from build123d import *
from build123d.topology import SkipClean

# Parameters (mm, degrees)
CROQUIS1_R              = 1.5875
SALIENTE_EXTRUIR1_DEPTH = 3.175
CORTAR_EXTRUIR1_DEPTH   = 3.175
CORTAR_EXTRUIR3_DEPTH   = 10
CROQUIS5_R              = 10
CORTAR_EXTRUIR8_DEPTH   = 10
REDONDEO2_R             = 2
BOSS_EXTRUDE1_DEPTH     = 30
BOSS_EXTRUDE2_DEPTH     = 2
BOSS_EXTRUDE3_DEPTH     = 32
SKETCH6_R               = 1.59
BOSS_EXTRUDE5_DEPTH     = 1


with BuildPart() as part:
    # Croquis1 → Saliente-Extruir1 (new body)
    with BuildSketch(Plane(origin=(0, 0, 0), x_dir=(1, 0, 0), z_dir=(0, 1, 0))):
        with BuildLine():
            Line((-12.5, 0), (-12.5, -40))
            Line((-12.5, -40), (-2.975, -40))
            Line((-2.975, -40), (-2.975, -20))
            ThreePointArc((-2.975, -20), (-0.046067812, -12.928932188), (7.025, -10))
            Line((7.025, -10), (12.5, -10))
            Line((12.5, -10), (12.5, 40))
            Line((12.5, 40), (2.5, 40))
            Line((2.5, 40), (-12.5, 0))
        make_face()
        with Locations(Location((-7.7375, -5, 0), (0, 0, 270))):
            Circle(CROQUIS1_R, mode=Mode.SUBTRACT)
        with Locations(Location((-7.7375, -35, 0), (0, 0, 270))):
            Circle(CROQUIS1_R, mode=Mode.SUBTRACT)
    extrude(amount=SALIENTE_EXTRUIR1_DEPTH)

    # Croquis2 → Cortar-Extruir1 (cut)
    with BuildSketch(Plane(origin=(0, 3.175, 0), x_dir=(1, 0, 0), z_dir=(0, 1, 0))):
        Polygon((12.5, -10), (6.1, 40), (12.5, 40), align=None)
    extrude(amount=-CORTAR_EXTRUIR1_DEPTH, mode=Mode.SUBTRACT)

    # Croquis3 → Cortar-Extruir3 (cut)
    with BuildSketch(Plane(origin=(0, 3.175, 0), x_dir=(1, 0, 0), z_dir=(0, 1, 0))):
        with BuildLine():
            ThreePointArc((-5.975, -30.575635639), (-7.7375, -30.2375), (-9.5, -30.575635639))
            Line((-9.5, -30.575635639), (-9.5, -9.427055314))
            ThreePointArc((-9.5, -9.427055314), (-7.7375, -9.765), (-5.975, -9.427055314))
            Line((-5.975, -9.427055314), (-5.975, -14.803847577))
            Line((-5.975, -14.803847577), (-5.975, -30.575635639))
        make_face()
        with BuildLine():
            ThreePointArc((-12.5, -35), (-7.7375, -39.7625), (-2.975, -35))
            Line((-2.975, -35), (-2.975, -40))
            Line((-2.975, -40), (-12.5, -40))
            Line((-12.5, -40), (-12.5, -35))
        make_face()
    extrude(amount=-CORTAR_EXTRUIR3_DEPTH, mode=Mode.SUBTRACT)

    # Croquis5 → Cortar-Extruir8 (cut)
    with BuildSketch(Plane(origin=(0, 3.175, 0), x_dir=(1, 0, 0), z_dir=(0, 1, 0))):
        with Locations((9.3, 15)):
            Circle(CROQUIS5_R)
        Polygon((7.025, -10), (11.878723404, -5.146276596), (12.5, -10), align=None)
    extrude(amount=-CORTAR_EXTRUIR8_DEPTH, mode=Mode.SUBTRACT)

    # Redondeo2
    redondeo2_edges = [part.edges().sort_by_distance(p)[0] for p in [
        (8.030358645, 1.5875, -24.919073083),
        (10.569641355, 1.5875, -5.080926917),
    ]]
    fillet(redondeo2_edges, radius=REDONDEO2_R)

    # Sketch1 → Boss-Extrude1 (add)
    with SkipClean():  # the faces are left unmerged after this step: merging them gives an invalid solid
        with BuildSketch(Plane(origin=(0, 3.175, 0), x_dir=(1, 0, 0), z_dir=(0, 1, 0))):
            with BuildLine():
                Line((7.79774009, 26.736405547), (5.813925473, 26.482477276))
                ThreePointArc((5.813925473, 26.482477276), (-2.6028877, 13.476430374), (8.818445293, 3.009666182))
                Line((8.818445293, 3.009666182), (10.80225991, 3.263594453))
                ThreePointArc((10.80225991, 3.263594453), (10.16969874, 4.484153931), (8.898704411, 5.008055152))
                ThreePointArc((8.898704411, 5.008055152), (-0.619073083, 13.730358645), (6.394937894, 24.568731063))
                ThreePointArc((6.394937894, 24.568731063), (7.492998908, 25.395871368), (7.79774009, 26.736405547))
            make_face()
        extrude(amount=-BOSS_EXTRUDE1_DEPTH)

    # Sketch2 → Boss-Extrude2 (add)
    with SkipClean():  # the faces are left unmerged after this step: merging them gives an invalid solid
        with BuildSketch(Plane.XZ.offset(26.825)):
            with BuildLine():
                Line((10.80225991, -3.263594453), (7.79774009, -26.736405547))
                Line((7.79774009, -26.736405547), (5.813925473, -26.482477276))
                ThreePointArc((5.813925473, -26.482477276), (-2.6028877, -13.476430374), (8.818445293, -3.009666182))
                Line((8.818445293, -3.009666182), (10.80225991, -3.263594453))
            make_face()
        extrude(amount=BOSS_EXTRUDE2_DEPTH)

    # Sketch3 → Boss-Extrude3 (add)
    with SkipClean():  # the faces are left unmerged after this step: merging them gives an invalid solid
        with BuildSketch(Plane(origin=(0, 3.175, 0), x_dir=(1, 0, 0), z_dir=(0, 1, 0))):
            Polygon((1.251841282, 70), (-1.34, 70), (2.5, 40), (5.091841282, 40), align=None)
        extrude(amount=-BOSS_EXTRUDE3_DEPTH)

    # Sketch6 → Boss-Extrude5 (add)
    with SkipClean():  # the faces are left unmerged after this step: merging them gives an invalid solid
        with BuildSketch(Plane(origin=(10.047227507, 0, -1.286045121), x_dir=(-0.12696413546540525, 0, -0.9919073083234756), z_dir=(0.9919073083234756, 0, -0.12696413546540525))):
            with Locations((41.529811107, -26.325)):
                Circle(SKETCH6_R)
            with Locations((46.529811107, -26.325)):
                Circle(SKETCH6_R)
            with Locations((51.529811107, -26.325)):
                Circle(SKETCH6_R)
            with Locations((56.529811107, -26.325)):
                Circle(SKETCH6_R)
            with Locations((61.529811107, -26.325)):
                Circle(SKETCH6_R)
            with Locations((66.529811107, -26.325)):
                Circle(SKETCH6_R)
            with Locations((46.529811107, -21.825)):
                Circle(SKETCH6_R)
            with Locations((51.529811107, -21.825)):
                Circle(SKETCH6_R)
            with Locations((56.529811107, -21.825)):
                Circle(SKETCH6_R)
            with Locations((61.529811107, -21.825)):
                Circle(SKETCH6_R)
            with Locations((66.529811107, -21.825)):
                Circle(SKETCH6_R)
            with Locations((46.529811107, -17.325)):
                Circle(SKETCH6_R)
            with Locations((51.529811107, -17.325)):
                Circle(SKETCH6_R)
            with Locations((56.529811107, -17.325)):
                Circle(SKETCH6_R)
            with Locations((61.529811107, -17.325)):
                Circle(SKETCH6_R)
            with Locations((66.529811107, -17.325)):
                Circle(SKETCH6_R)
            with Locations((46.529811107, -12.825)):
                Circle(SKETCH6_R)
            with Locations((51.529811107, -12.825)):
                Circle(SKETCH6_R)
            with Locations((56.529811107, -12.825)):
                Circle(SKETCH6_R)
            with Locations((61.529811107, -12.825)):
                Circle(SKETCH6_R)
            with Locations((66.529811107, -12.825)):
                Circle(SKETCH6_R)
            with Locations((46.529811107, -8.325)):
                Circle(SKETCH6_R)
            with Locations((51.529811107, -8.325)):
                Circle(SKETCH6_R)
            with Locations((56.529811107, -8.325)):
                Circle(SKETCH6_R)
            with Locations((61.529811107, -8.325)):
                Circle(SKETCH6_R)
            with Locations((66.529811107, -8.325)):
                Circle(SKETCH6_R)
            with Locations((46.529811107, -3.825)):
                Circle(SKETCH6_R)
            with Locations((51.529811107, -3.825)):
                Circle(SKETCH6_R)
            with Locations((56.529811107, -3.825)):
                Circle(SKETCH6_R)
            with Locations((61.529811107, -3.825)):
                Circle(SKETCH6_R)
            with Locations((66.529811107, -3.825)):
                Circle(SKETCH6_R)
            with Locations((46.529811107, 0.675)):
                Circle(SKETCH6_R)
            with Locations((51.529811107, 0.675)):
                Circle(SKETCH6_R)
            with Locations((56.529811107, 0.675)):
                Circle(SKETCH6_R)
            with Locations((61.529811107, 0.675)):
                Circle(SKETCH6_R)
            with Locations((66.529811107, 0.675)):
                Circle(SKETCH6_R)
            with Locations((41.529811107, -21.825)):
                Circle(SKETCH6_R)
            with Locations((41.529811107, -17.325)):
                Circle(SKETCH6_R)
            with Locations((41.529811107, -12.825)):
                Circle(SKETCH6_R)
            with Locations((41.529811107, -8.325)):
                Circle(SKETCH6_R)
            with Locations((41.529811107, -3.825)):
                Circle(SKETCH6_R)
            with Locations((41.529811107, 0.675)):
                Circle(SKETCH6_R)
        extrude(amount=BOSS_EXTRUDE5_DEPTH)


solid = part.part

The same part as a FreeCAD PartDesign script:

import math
import FreeCAD as App
import Part
import Sketcher

V = App.Vector
Q = App.Units.Quantity


def edges_at(feature, points):
    """Names of the edges that pass closest to the given points."""
    edges = feature.Shape.Edges
    near = lambda p: min(range(len(edges)), key=lambda i: edges[i].distToShape(Part.Vertex(*p))[0])
    return sorted({f"Edge{near(p) + 1}" for p in points})

doc = App.newDocument("Part")
body = doc.addObject("PartDesign::Body", "Body")

# Sketch on XZ plane
sketch1 = body.newObject("Sketcher::SketchObject", "Sketch")
sketch1.AttachmentSupport = (doc.getObject("XZ_Plane"), [""])
sketch1.MapMode = "FlatFace"
sketch1.addGeometry(Part.LineSegment(V(-12.5, 0, 0), V(-12.5, 40, 0)), False)
sketch1.addGeometry(Part.LineSegment(V(-12.5, 40, 0), V(-3, 40, 0)), False)
sketch1.addGeometry(Part.LineSegment(V(-3, 40, 0), V(-3, 20, 0)), False)
sketch1.addGeometry(Part.ArcOfCircle(Part.Circle(V(7, 20, 0), V(0, 0, 1), 10), math.radians(180), math.radians(270)), False)
sketch1.addGeometry(Part.LineSegment(V(7, 10, 0), V(12.5, 10, 0)), False)
sketch1.addGeometry(Part.LineSegment(V(12.5, 10, 0), V(12.5, -40, 0)), False)
sketch1.addGeometry(Part.LineSegment(V(12.5, -40, 0), V(2.5, -40, 0)), False)
sketch1.addGeometry(Part.LineSegment(V(2.5, -40, 0), V(-12.5, 0, 0)), False)
sketch1.addGeometry(Part.Circle(V(-7.7, 35, 0), V(0, 0, 1), 1.6), False)
sketch1.addGeometry(Part.Circle(V(-7.7, 5, 0), V(0, 0, 1), 1.6), False)
sketch1.addConstraint(Sketcher.Constraint("Coincident", 0, 2, 1, 1))
sketch1.addConstraint(Sketcher.Constraint("Coincident", 1, 2, 2, 1))
sketch1.addConstraint(Sketcher.Constraint("Tangent", 2, 2, 3, 1))
sketch1.addConstraint(Sketcher.Constraint("Tangent", 3, 2, 4, 1))
sketch1.addConstraint(Sketcher.Constraint("Coincident", 4, 2, 5, 1))
sketch1.addConstraint(Sketcher.Constraint("Coincident", 5, 2, 6, 1))
sketch1.addConstraint(Sketcher.Constraint("Coincident", 6, 2, 7, 1))
sketch1.addConstraint(Sketcher.Constraint("Coincident", 7, 2, 0, 1))
sketch1.addConstraint(Sketcher.Constraint("Vertical", 0))
sketch1.addConstraint(Sketcher.Constraint("Horizontal", 1))
sketch1.addConstraint(Sketcher.Constraint("Vertical", 2))
sketch1.addConstraint(Sketcher.Constraint("Horizontal", 4))
sketch1.addConstraint(Sketcher.Constraint("Vertical", 5))
sketch1.addConstraint(Sketcher.Constraint("Horizontal", 6))
sketch1.addConstraint(Sketcher.Constraint("Equal", 8, 9))
sketch1.addConstraint(Sketcher.Constraint("Symmetric", 0, 2, 5, 2, -1, 1))
sketch1.addConstraint(Sketcher.Constraint("PointOnObject", 7, 2, -1))
sketch1.addConstraint(Sketcher.Constraint("Vertical", 8, 3, 9, 3))
sketch1.addConstraint(Sketcher.Constraint("Radius", 3, 10.0))
sketch1.addConstraint(Sketcher.Constraint("DistanceX", 6, 2, 6, 1, 10.0))
sketch1.addConstraint(Sketcher.Constraint("DistanceY", 0, 1, 0, 2, 40.0))
sketch1.addConstraint(Sketcher.Constraint("DistanceY", 2, 2, 2, 1, 20.0))
sketch1.addConstraint(Sketcher.Constraint("Diameter", 8, 3.175))
sketch1.addConstraint(Sketcher.Constraint("DistanceY", -1, 1, 8, 3, 35.0))
sketch1.addConstraint(Sketcher.Constraint("DistanceY", -1, 1, 9, 3, 5.0))
sketch1.addConstraint(Sketcher.Constraint("DistanceX", 7, 2, 4, 2, 25.0))
sketch1.addConstraint(Sketcher.Constraint("DistanceX", 1, 1, 1, 2, 9.525))
sketch1.addConstraint(Sketcher.Constraint("DistanceX", 8, 3, -1, 1, 7.7375))
pad1 = body.newObject("PartDesign::Pad", "Pad")
pad1.Profile = sketch1
pad1.Length = 3.175
pad1.Reversed = True

# Sketch on XZ plane
sketch2 = body.newObject("Sketcher::SketchObject", "Sketch001")
sketch2.AttachmentSupport = (doc.getObject("XZ_Plane"), [""])
sketch2.MapMode = "FlatFace"
sketch2.AttachmentOffset = App.Placement(V(0, 0, -3.175), App.Rotation())
sketch2.addGeometry(Part.LineSegment(V(6, -40, 0), V(12, 10, 0)), False)
sketch2.addGeometry(Part.LineSegment(V(12, 10, 0), V(12, -40, 0)), False)
sketch2.addGeometry(Part.LineSegment(V(12, -40, 0), V(6, -40, 0)), False)
sketch2.addConstraint(Sketcher.Constraint("Coincident", 0, 2, 1, 1))
sketch2.addConstraint(Sketcher.Constraint("Coincident", 1, 2, 2, 1))
sketch2.addConstraint(Sketcher.Constraint("Coincident", 2, 2, 0, 1))
sketch2.addConstraint(Sketcher.Constraint("Vertical", 1))
sketch2.addConstraint(Sketcher.Constraint("Horizontal", 2))
sketch2.addConstraint(Sketcher.Constraint("DistanceY", 1, 2, 1, 1, 50.0))
sketch2.addConstraint(Sketcher.Constraint("DistanceX", 2, 2, 2, 1, 6.4))
sketch2.addConstraint(Sketcher.Constraint("DistanceY", -1, 1, 0, 2, 10.0))
sketch2.addConstraint(Sketcher.Constraint("DistanceX", -1, 1, 0, 2, 12.5))
pocket1 = body.newObject("PartDesign::Pocket", "Pocket")
pocket1.Profile = sketch2
pocket1.Length = 3.175
pocket1.Reversed = True

# Sketch on XZ plane
sketch3 = body.newObject("Sketcher::SketchObject", "Sketch002")
sketch3.AttachmentSupport = (doc.getObject("XZ_Plane"), [""])
sketch3.MapMode = "FlatFace"
sketch3.AttachmentOffset = App.Placement(V(0, 0, -3.175), App.Rotation())
sketch3.addGeometry(Part.ArcOfCircle(Part.Circle(V(-7.7, 35, 0), V(0, 0, 1), 4.8), math.radians(-112), math.radians(-68)), False)
sketch3.addGeometry(Part.LineSegment(V(-6, 30.6, 0), V(-6, 9.4, 0)), False)
sketch3.addGeometry(Part.ArcOfCircle(Part.Circle(V(-7.7, 5, 0), V(0, 0, 1), 4.8), math.radians(68), math.radians(112)), False)
sketch3.addGeometry(Part.LineSegment(V(-9.5, 9.4, 0), V(-9.5, 30.6, 0)), False)
sketch3.addGeometry(Part.ArcOfCircle(Part.Circle(V(-7.7, 35, 0), V(0, 0, 1), 4.8), math.radians(0), math.radians(180)), False)
sketch3.addGeometry(Part.LineSegment(V(-12.5, 35, 0), V(-12.5, 40, 0)), False)
sketch3.addGeometry(Part.LineSegment(V(-12.5, 40, 0), V(-3, 40, 0)), False)
sketch3.addGeometry(Part.LineSegment(V(-3, 40, 0), V(-3, 35, 0)), False)
sketch3.addConstraint(Sketcher.Constraint("Coincident", 0, 2, 1, 1))
sketch3.addConstraint(Sketcher.Constraint("Coincident", 1, 2, 2, 1))
sketch3.addConstraint(Sketcher.Constraint("Coincident", 2, 2, 3, 1))
sketch3.addConstraint(Sketcher.Constraint("Coincident", 3, 2, 0, 1))
sketch3.addConstraint(Sketcher.Constraint("Tangent", 4, 2, 5, 1))
sketch3.addConstraint(Sketcher.Constraint("Coincident", 5, 2, 6, 1))
sketch3.addConstraint(Sketcher.Constraint("Coincident", 6, 2, 7, 1))
sketch3.addConstraint(Sketcher.Constraint("Tangent", 7, 2, 4, 1))
sketch3.addConstraint(Sketcher.Constraint("Vertical", 1))
sketch3.addConstraint(Sketcher.Constraint("Vertical", 3))
sketch3.addConstraint(Sketcher.Constraint("Vertical", 5))
sketch3.addConstraint(Sketcher.Constraint("Horizontal", 6))
sketch3.addConstraint(Sketcher.Constraint("Vertical", 7))
sketch3.addConstraint(Sketcher.Constraint("Coincident", 4, 3, 0, 3))
sketch3.addConstraint(Sketcher.Constraint("Equal", 0, 4))
sketch3.addConstraint(Sketcher.Constraint("Horizontal", 1, 2, 2, 2))
sketch3.addConstraint(Sketcher.Constraint("Horizontal", 0, 2, 3, 2))
sketch3.addConstraint(Sketcher.Constraint("DistanceY", 5, 1, 5, 2, 5.0))
sketch3.addConstraint(Sketcher.Constraint("DistanceY", -1, 1, 0, 3, 35.0))
sketch3.addConstraint(Sketcher.Constraint("DistanceY", -1, 1, 2, 3, 5.0))
sketch3.addConstraint(Sketcher.Constraint("Radius", 2, 4.765))
sketch3.addConstraint(Sketcher.Constraint("DistanceX", 4, 2, 3, 2, 3.0))
sketch3.addConstraint(Sketcher.Constraint("DistanceX", 2, 2, -1, 1, 9.5))
sketch3.addConstraint(Sketcher.Constraint("Radius", 0, 4.7625))
pocket2 = body.newObject("PartDesign::Pocket", "Pocket001")
pocket2.Profile = sketch3
pocket2.Length = 10
pocket2.Reversed = True

# Sketch on XZ plane
sketch4 = body.newObject("Sketcher::SketchObject", "Sketch003")
sketch4.AttachmentSupport = (doc.getObject("XZ_Plane"), [""])
sketch4.MapMode = "FlatFace"
sketch4.AttachmentOffset = App.Placement(V(0, 0, -3.175), App.Rotation())
sketch4.addGeometry(Part.Circle(V(9.3, -15, 0), V(0, 0, 1), 10), False)
sketch4.addGeometry(Part.LineSegment(V(11.9, 5.1, 0), V(7, 10, 0)), False)
sketch4.addGeometry(Part.LineSegment(V(7, 10, 0), V(12.5, 10, 0)), False)
sketch4.addGeometry(Part.LineSegment(V(12.5, 10, 0), V(11.9, 5.1, 0)), False)
sketch4.addConstraint(Sketcher.Constraint("Coincident", 1, 2, 2, 1))
sketch4.addConstraint(Sketcher.Constraint("Coincident", 2, 2, 3, 1))
sketch4.addConstraint(Sketcher.Constraint("Coincident", 3, 2, 1, 1))
sketch4.addConstraint(Sketcher.Constraint("Horizontal", 2))
sketch4.addConstraint(Sketcher.Constraint("Diameter", 0, 20.0))
sketch4.addConstraint(Sketcher.Constraint("Angle", 1, Q("135 deg")))
sketch4.addConstraint(Sketcher.Constraint("DistanceY", 0, 3, -1, 1, 15.0))
sketch4.addConstraint(Sketcher.Constraint("DistanceY", -1, 1, 1, 2, 10.0))
sketch4.addConstraint(Sketcher.Constraint("DistanceX", -1, 1, 0, 3, 9.3))
sketch4.addConstraint(Sketcher.Constraint("DistanceX", -1, 1, 2, 2, 12.5))
sketch4.addConstraint(Sketcher.Constraint("DistanceX", 2, 1, 2, 2, 5.475))
sketch4.addConstraint(Sketcher.Constraint("Distance", 1, 6.864201))
pocket3 = body.newObject("PartDesign::Pocket", "Pocket002")
pocket3.Profile = sketch4
pocket3.Length = 10
pocket3.Reversed = True
doc.recompute()

fillet = body.newObject("PartDesign::Fillet", "Fillet")
fillet.Base = (pocket3, edges_at(pocket3, [(8.03, 1.587, -24.919), (10.57, 1.587, -5.081)]))
fillet.Radius = 2

# Sketch on XZ plane
sketch5 = body.newObject("Sketcher::SketchObject", "Sketch004")
sketch5.AttachmentSupport = (doc.getObject("XZ_Plane"), [""])
sketch5.MapMode = "FlatFace"
sketch5.AttachmentOffset = App.Placement(V(0, 0, -3.175), App.Rotation())
sketch5.addGeometry(Part.LineSegment(V(7.8, -26.7, 0), V(5.8, -26.5, 0)), False)
sketch5.addGeometry(Part.ArcOfCircle(Part.Circle(V(9.3, -15, 0), V(0, 0, 1), 12), math.radians(92), math.radians(253)), False)
sketch5.addGeometry(Part.LineSegment(V(8.8, -3, 0), V(10.8, -3.3, 0)), False)
sketch5.addGeometry(Part.ArcOfCircle(Part.Circle(V(8.8, -3, 0), V(0, 0, 1), 2), math.radians(-88), math.radians(-7)), False)
sketch5.addGeometry(Part.ArcOfCircle(Part.Circle(V(9.3, -15, 0), V(0, 0, 1), 10), math.radians(92), math.radians(253)), False)
sketch5.addGeometry(Part.ArcOfCircle(Part.Circle(V(5.8, -26.5, 0), V(0, 0, 1), 2), math.radians(-7), math.radians(73)), False)
sketch5.addConstraint(Sketcher.Constraint("Coincident", 0, 2, 1, 2))
sketch5.addConstraint(Sketcher.Constraint("Coincident", 1, 1, 2, 1))
sketch5.addConstraint(Sketcher.Constraint("Coincident", 2, 2, 3, 2))
sketch5.addConstraint(Sketcher.Constraint("Tangent", 3, 1, 4, 1))
sketch5.addConstraint(Sketcher.Constraint("Tangent", 4, 2, 5, 2))
sketch5.addConstraint(Sketcher.Constraint("Coincident", 5, 1, 0, 1))
sketch5.addConstraint(Sketcher.Constraint("Coincident", 4, 3, 1, 3))
sketch5.addConstraint(Sketcher.Constraint("Coincident", 0, 2, 5, 3))
sketch5.addConstraint(Sketcher.Constraint("Coincident", 1, 1, 3, 3))
sketch5.addConstraint(Sketcher.Constraint("Parallel", 0, 2))
sketch5.addConstraint(Sketcher.Constraint("Radius", 1, 12.0))
sketch5.addConstraint(Sketcher.Constraint("Radius", 3, 2.0))
sketch5.addConstraint(Sketcher.Constraint("DistanceY", 1, 3, -1, 1, 15.0))
sketch5.addConstraint(Sketcher.Constraint("DistanceX", -1, 1, 1, 3, 9.3))
sketch5.addConstraint(Sketcher.Constraint("DistanceX", -1, 1, 2, 2, 10.80226))
sketch5.addConstraint(Sketcher.Constraint("DistanceY", 4, 2, -1, 1, 24.568731))
sketch5.addConstraint(Sketcher.Constraint("DistanceX", -1, 1, 5, 1, 7.79774))
pad2 = body.newObject("PartDesign::Pad", "Pad001")
pad2.Profile = sketch5
pad2.Length = 30

# Sketch on XZ plane
sketch6 = body.newObject("Sketcher::SketchObject", "Sketch005")
sketch6.AttachmentSupport = (doc.getObject("XZ_Plane"), [""])
sketch6.MapMode = "FlatFace"
sketch6.AttachmentOffset = App.Placement(V(0, 0, 26.825), App.Rotation())
sketch6.addGeometry(Part.LineSegment(V(7.8, -26.7, 0), V(10.8, -3.3, 0)), False)
sketch6.addGeometry(Part.LineSegment(V(10.8, -3.3, 0), V(8.8, -3, 0)), False)
sketch6.addGeometry(Part.ArcOfCircle(Part.Circle(V(9.3, -15, 0), V(0, 0, 1), 12), math.radians(92), math.radians(253)), False)
sketch6.addGeometry(Part.LineSegment(V(5.8, -26.5, 0), V(7.8, -26.7, 0)), False)
sketch6.addConstraint(Sketcher.Constraint("Coincident", 0, 2, 1, 1))
sketch6.addConstraint(Sketcher.Constraint("Coincident", 1, 2, 2, 1))
sketch6.addConstraint(Sketcher.Constraint("Coincident", 2, 2, 3, 1))
sketch6.addConstraint(Sketcher.Constraint("Coincident", 3, 2, 0, 1))
sketch6.addConstraint(Sketcher.Constraint("Perpendicular", 0, 1))
sketch6.addConstraint(Sketcher.Constraint("Parallel", 1, 3))
sketch6.addConstraint(Sketcher.Constraint("Equal", 1, 3))
sketch6.addConstraint(Sketcher.Constraint("Radius", 2, 12.0))
sketch6.addConstraint(Sketcher.Constraint("Distance", 1, 2.0))
sketch6.addConstraint(Sketcher.Constraint("DistanceY", 2, 3, -1, 1, 15.0))
sketch6.addConstraint(Sketcher.Constraint("DistanceX", -1, 1, 2, 3, 9.3))
sketch6.addConstraint(Sketcher.Constraint("Distance", 0, 23.664319))
sketch6.addConstraint(Sketcher.Constraint("DistanceX", -1, 1, 0, 2, 10.80226))
pad3 = body.newObject("PartDesign::Pad", "Pad002")
pad3.Profile = sketch6
pad3.Length = 2

# Sketch on XZ plane
sketch7 = body.newObject("Sketcher::SketchObject", "Sketch006")
sketch7.AttachmentSupport = (doc.getObject("XZ_Plane"), [""])
sketch7.MapMode = "FlatFace"
sketch7.AttachmentOffset = App.Placement(V(0, 0, -3.175), App.Rotation())
sketch7.addGeometry(Part.LineSegment(V(1.3, -70, 0), V(-1.3, -70, 0)), False)
sketch7.addGeometry(Part.LineSegment(V(-1.3, -70, 0), V(2.5, -40, 0)), False)
sketch7.addGeometry(Part.LineSegment(V(2.5, -40, 0), V(5.1, -40, 0)), False)
sketch7.addGeometry(Part.LineSegment(V(5.1, -40, 0), V(1.3, -70, 0)), False)
sketch7.addConstraint(Sketcher.Constraint("Coincident", 0, 2, 1, 1))
sketch7.addConstraint(Sketcher.Constraint("Coincident", 1, 2, 2, 1))
sketch7.addConstraint(Sketcher.Constraint("Coincident", 2, 2, 3, 1))
sketch7.addConstraint(Sketcher.Constraint("Coincident", 3, 2, 0, 1))
sketch7.addConstraint(Sketcher.Constraint("Horizontal", 0))
sketch7.addConstraint(Sketcher.Constraint("Horizontal", 2))
sketch7.addConstraint(Sketcher.Constraint("Parallel", 1, 3))
sketch7.addConstraint(Sketcher.Constraint("DistanceY", 0, 2, -1, 1, 70.0))
sketch7.addConstraint(Sketcher.Constraint("DistanceY", 1, 2, -1, 1, 40.0))
sketch7.addConstraint(Sketcher.Constraint("DistanceX", -1, 1, 1, 2, 2.5))
sketch7.addConstraint(Sketcher.Constraint("DistanceX", 0, 2, -1, 1, 1.34))
sketch7.addConstraint(Sketcher.Constraint("DistanceX", 0, 2, 0, 1, 2.591841))
pad4 = body.newObject("PartDesign::Pad", "Pad003")
pad4.Profile = sketch7
pad4.Length = 32

# Sketch on an angled plane
sketch8 = body.newObject("Sketcher::SketchObject", "Sketch007")
sketch8.Placement = App.Placement(V(10.047228, 0, -1.286045), App.Rotation(V(-0.126964135, 0, -0.991907308), V(0, 0.999999999, 0), V(0.991907308, 0, -0.126964135), "ZXY"))
sketch8.addGeometry(Part.Circle(V(41.5, -26.3, 0), V(0, 0, 1), 1.6), False)
sketch8.addGeometry(Part.Circle(V(46.5, -26.3, 0), V(0, 0, 1), 1.6), False)
sketch8.addGeometry(Part.Circle(V(51.5, -26.3, 0), V(0, 0, 1), 1.6), False)
sketch8.addGeometry(Part.Circle(V(56.5, -26.3, 0), V(0, 0, 1), 1.6), False)
sketch8.addGeometry(Part.Circle(V(61.5, -26.3, 0), V(0, 0, 1), 1.6), False)
sketch8.addGeometry(Part.Circle(V(66.5, -26.3, 0), V(0, 0, 1), 1.6), False)
sketch8.addGeometry(Part.Circle(V(46.5, -21.8, 0), V(0, 0, 1), 1.6), False)
sketch8.addGeometry(Part.Circle(V(51.5, -21.8, 0), V(0, 0, 1), 1.6), False)
sketch8.addGeometry(Part.Circle(V(56.5, -21.8, 0), V(0, 0, 1), 1.6), False)
sketch8.addGeometry(Part.Circle(V(61.5, -21.8, 0), V(0, 0, 1), 1.6), False)
sketch8.addGeometry(Part.Circle(V(66.5, -21.8, 0), V(0, 0, 1), 1.6), False)
sketch8.addGeometry(Part.Circle(V(46.5, -17.3, 0), V(0, 0, 1), 1.6), False)
sketch8.addGeometry(Part.Circle(V(51.5, -17.3, 0), V(0, 0, 1), 1.6), False)
sketch8.addGeometry(Part.Circle(V(56.5, -17.3, 0), V(0, 0, 1), 1.6), False)
sketch8.addGeometry(Part.Circle(V(61.5, -17.3, 0), V(0, 0, 1), 1.6), False)
sketch8.addGeometry(Part.Circle(V(66.5, -17.3, 0), V(0, 0, 1), 1.6), False)
sketch8.addGeometry(Part.Circle(V(46.5, -12.8, 0), V(0, 0, 1), 1.6), False)
sketch8.addGeometry(Part.Circle(V(51.5, -12.8, 0), V(0, 0, 1), 1.6), False)
sketch8.addGeometry(Part.Circle(V(56.5, -12.8, 0), V(0, 0, 1), 1.6), False)
sketch8.addGeometry(Part.Circle(V(61.5, -12.8, 0), V(0, 0, 1), 1.6), False)
sketch8.addGeometry(Part.Circle(V(66.5, -12.8, 0), V(0, 0, 1), 1.6), False)
sketch8.addGeometry(Part.Circle(V(46.5, -8.3, 0), V(0, 0, 1), 1.6), False)
sketch8.addGeometry(Part.Circle(V(51.5, -8.3, 0), V(0, 0, 1), 1.6), False)
sketch8.addGeometry(Part.Circle(V(56.5, -8.3, 0), V(0, 0, 1), 1.6), False)
sketch8.addGeometry(Part.Circle(V(61.5, -8.3, 0), V(0, 0, 1), 1.6), False)
sketch8.addGeometry(Part.Circle(V(66.5, -8.3, 0), V(0, 0, 1), 1.6), False)
sketch8.addGeometry(Part.Circle(V(46.5, -3.8, 0), V(0, 0, 1), 1.6), False)
sketch8.addGeometry(Part.Circle(V(51.5, -3.8, 0), V(0, 0, 1), 1.6), False)
sketch8.addGeometry(Part.Circle(V(56.5, -3.8, 0), V(0, 0, 1), 1.6), False)
sketch8.addGeometry(Part.Circle(V(61.5, -3.8, 0), V(0, 0, 1), 1.6), False)
sketch8.addGeometry(Part.Circle(V(66.5, -3.8, 0), V(0, 0, 1), 1.6), False)
sketch8.addGeometry(Part.Circle(V(46.5, 0.7, 0), V(0, 0, 1), 1.6), False)
sketch8.addGeometry(Part.Circle(V(51.5, 0.7, 0), V(0, 0, 1), 1.6), False)
sketch8.addGeometry(Part.Circle(V(56.5, 0.7, 0), V(0, 0, 1), 1.6), False)
sketch8.addGeometry(Part.Circle(V(61.5, 0.7, 0), V(0, 0, 1), 1.6), False)
sketch8.addGeometry(Part.Circle(V(66.5, 0.7, 0), V(0, 0, 1), 1.6), False)
sketch8.addGeometry(Part.Circle(V(41.5, -21.8, 0), V(0, 0, 1), 1.6), False)
sketch8.addGeometry(Part.Circle(V(41.5, -17.3, 0), V(0, 0, 1), 1.6), False)
sketch8.addGeometry(Part.Circle(V(41.5, -12.8, 0), V(0, 0, 1), 1.6), False)
sketch8.addGeometry(Part.Circle(V(41.5, -8.3, 0), V(0, 0, 1), 1.6), False)
sketch8.addGeometry(Part.Circle(V(41.5, -3.8, 0), V(0, 0, 1), 1.6), False)
sketch8.addGeometry(Part.Circle(V(41.5, 0.7, 0), V(0, 0, 1), 1.6), False)
sketch8.addConstraint(Sketcher.Constraint("Equal", 0, 1))
sketch8.addConstraint(Sketcher.Constraint("Equal", 1, 2))
sketch8.addConstraint(Sketcher.Constraint("Equal", 2, 3))
sketch8.addConstraint(Sketcher.Constraint("Equal", 3, 4))
sketch8.addConstraint(Sketcher.Constraint("Equal", 4, 5))
sketch8.addConstraint(Sketcher.Constraint("Equal", 5, 6))
sketch8.addConstraint(Sketcher.Constraint("Equal", 6, 7))
sketch8.addConstraint(Sketcher.Constraint("Equal", 7, 8))
sketch8.addConstraint(Sketcher.Constraint("Equal", 8, 9))
sketch8.addConstraint(Sketcher.Constraint("Equal", 9, 10))
sketch8.addConstraint(Sketcher.Constraint("Equal", 10, 11))
sketch8.addConstraint(Sketcher.Constraint("Equal", 11, 12))
sketch8.addConstraint(Sketcher.Constraint("Equal", 12, 13))
sketch8.addConstraint(Sketcher.Constraint("Equal", 13, 14))
sketch8.addConstraint(Sketcher.Constraint("Equal", 14, 15))
sketch8.addConstraint(Sketcher.Constraint("Equal", 15, 16))
sketch8.addConstraint(Sketcher.Constraint("Equal", 16, 17))
sketch8.addConstraint(Sketcher.Constraint("Equal", 17, 18))
sketch8.addConstraint(Sketcher.Constraint("Equal", 18, 19))
sketch8.addConstraint(Sketcher.Constraint("Equal", 19, 20))
sketch8.addConstraint(Sketcher.Constraint("Equal", 20, 21))
sketch8.addConstraint(Sketcher.Constraint("Equal", 21, 22))
sketch8.addConstraint(Sketcher.Constraint("Equal", 22, 23))
sketch8.addConstraint(Sketcher.Constraint("Equal", 23, 24))
sketch8.addConstraint(Sketcher.Constraint("Equal", 24, 25))
sketch8.addConstraint(Sketcher.Constraint("Equal", 25, 26))
sketch8.addConstraint(Sketcher.Constraint("Equal", 26, 27))
sketch8.addConstraint(Sketcher.Constraint("Equal", 27, 28))
sketch8.addConstraint(Sketcher.Constraint("Equal", 28, 29))
sketch8.addConstraint(Sketcher.Constraint("Equal", 29, 30))
sketch8.addConstraint(Sketcher.Constraint("Equal", 30, 31))
sketch8.addConstraint(Sketcher.Constraint("Equal", 31, 32))
sketch8.addConstraint(Sketcher.Constraint("Equal", 32, 33))
sketch8.addConstraint(Sketcher.Constraint("Equal", 33, 34))
sketch8.addConstraint(Sketcher.Constraint("Equal", 34, 35))
sketch8.addConstraint(Sketcher.Constraint("Equal", 35, 36))
sketch8.addConstraint(Sketcher.Constraint("Equal", 36, 37))
sketch8.addConstraint(Sketcher.Constraint("Equal", 37, 38))
sketch8.addConstraint(Sketcher.Constraint("Equal", 38, 39))
sketch8.addConstraint(Sketcher.Constraint("Equal", 39, 40))
sketch8.addConstraint(Sketcher.Constraint("Equal", 40, 41))
sketch8.addConstraint(Sketcher.Constraint("Horizontal", 0, 3, 1, 3))
sketch8.addConstraint(Sketcher.Constraint("Horizontal", 1, 3, 2, 3))
sketch8.addConstraint(Sketcher.Constraint("Horizontal", 2, 3, 3, 3))
sketch8.addConstraint(Sketcher.Constraint("Horizontal", 3, 3, 4, 3))
sketch8.addConstraint(Sketcher.Constraint("Horizontal", 4, 3, 5, 3))
sketch8.addConstraint(Sketcher.Constraint("Horizontal", 6, 3, 7, 3))
sketch8.addConstraint(Sketcher.Constraint("Horizontal", 7, 3, 8, 3))
sketch8.addConstraint(Sketcher.Constraint("Horizontal", 8, 3, 9, 3))
sketch8.addConstraint(Sketcher.Constraint("Horizontal", 9, 3, 10, 3))
sketch8.addConstraint(Sketcher.Constraint("Horizontal", 11, 3, 12, 3))
sketch8.addConstraint(Sketcher.Constraint("Horizontal", 12, 3, 13, 3))
sketch8.addConstraint(Sketcher.Constraint("Horizontal", 13, 3, 14, 3))
sketch8.addConstraint(Sketcher.Constraint("Horizontal", 14, 3, 15, 3))
sketch8.addConstraint(Sketcher.Constraint("Horizontal", 16, 3, 17, 3))
sketch8.addConstraint(Sketcher.Constraint("Horizontal", 17, 3, 18, 3))
sketch8.addConstraint(Sketcher.Constraint("Horizontal", 18, 3, 19, 3))
sketch8.addConstraint(Sketcher.Constraint("Horizontal", 19, 3, 20, 3))
sketch8.addConstraint(Sketcher.Constraint("Horizontal", 21, 3, 22, 3))
sketch8.addConstraint(Sketcher.Constraint("Horizontal", 22, 3, 23, 3))
sketch8.addConstraint(Sketcher.Constraint("Horizontal", 23, 3, 24, 3))
sketch8.addConstraint(Sketcher.Constraint("Horizontal", 24, 3, 25, 3))
sketch8.addConstraint(Sketcher.Constraint("Horizontal", 26, 3, 27, 3))
sketch8.addConstraint(Sketcher.Constraint("Horizontal", 27, 3, 28, 3))
sketch8.addConstraint(Sketcher.Constraint("Horizontal", 28, 3, 29, 3))
sketch8.addConstraint(Sketcher.Constraint("Horizontal", 29, 3, 30, 3))
sketch8.addConstraint(Sketcher.Constraint("Horizontal", 31, 3, 32, 3))
sketch8.addConstraint(Sketcher.Constraint("Horizontal", 32, 3, 33, 3))
sketch8.addConstraint(Sketcher.Constraint("Horizontal", 33, 3, 34, 3))
sketch8.addConstraint(Sketcher.Constraint("Horizontal", 34, 3, 35, 3))
sketch8.addConstraint(Sketcher.Constraint("Horizontal", 10, 3, 36, 3))
sketch8.addConstraint(Sketcher.Constraint("Horizontal", 15, 3, 37, 3))
sketch8.addConstraint(Sketcher.Constraint("Horizontal", 20, 3, 38, 3))
sketch8.addConstraint(Sketcher.Constraint("Horizontal", 25, 3, 39, 3))
sketch8.addConstraint(Sketcher.Constraint("Horizontal", 30, 3, 40, 3))
sketch8.addConstraint(Sketcher.Constraint("Horizontal", 35, 3, 41, 3))
sketch8.addConstraint(Sketcher.Constraint("Vertical", 1, 3, 6, 3))
sketch8.addConstraint(Sketcher.Constraint("Vertical", 2, 3, 7, 3))
sketch8.addConstraint(Sketcher.Constraint("Vertical", 3, 3, 8, 3))
sketch8.addConstraint(Sketcher.Constraint("Vertical", 4, 3, 9, 3))
sketch8.addConstraint(Sketcher.Constraint("Vertical", 5, 3, 10, 3))
sketch8.addConstraint(Sketcher.Constraint("Vertical", 6, 3, 11, 3))
sketch8.addConstraint(Sketcher.Constraint("Vertical", 7, 3, 12, 3))
sketch8.addConstraint(Sketcher.Constraint("Vertical", 8, 3, 13, 3))
sketch8.addConstraint(Sketcher.Constraint("Vertical", 9, 3, 14, 3))
sketch8.addConstraint(Sketcher.Constraint("Vertical", 10, 3, 15, 3))
sketch8.addConstraint(Sketcher.Constraint("Vertical", 11, 3, 16, 3))
sketch8.addConstraint(Sketcher.Constraint("Vertical", 12, 3, 17, 3))
sketch8.addConstraint(Sketcher.Constraint("Vertical", 13, 3, 18, 3))
sketch8.addConstraint(Sketcher.Constraint("Vertical", 14, 3, 19, 3))
sketch8.addConstraint(Sketcher.Constraint("Vertical", 15, 3, 20, 3))
sketch8.addConstraint(Sketcher.Constraint("Vertical", 16, 3, 21, 3))
sketch8.addConstraint(Sketcher.Constraint("Vertical", 17, 3, 22, 3))
sketch8.addConstraint(Sketcher.Constraint("Vertical", 18, 3, 23, 3))
sketch8.addConstraint(Sketcher.Constraint("Vertical", 19, 3, 24, 3))
sketch8.addConstraint(Sketcher.Constraint("Vertical", 20, 3, 25, 3))
sketch8.addConstraint(Sketcher.Constraint("Vertical", 21, 3, 26, 3))
sketch8.addConstraint(Sketcher.Constraint("Vertical", 22, 3, 27, 3))
sketch8.addConstraint(Sketcher.Constraint("Vertical", 23, 3, 28, 3))
sketch8.addConstraint(Sketcher.Constraint("Vertical", 24, 3, 29, 3))
sketch8.addConstraint(Sketcher.Constraint("Vertical", 25, 3, 30, 3))
sketch8.addConstraint(Sketcher.Constraint("Vertical", 26, 3, 31, 3))
sketch8.addConstraint(Sketcher.Constraint("Vertical", 27, 3, 32, 3))
sketch8.addConstraint(Sketcher.Constraint("Vertical", 28, 3, 33, 3))
sketch8.addConstraint(Sketcher.Constraint("Vertical", 29, 3, 34, 3))
sketch8.addConstraint(Sketcher.Constraint("Vertical", 30, 3, 35, 3))
sketch8.addConstraint(Sketcher.Constraint("Vertical", 0, 3, 36, 3))
sketch8.addConstraint(Sketcher.Constraint("Vertical", 36, 3, 37, 3))
sketch8.addConstraint(Sketcher.Constraint("Vertical", 37, 3, 38, 3))
sketch8.addConstraint(Sketcher.Constraint("Vertical", 38, 3, 39, 3))
sketch8.addConstraint(Sketcher.Constraint("Vertical", 39, 3, 40, 3))
sketch8.addConstraint(Sketcher.Constraint("Vertical", 40, 3, 41, 3))
sketch8.addConstraint(Sketcher.Constraint("Diameter", 0, 3.18))
sketch8.addConstraint(Sketcher.Constraint("DistanceX", 0, 3, 1, 3, 5.0))
sketch8.addConstraint(Sketcher.Constraint("DistanceX", 1, 3, 2, 3, 5.0))
sketch8.addConstraint(Sketcher.Constraint("DistanceX", 2, 3, 3, 3, 5.0))
sketch8.addConstraint(Sketcher.Constraint("DistanceX", 3, 3, 4, 3, 5.0))
sketch8.addConstraint(Sketcher.Constraint("DistanceX", 4, 3, 5, 3, 5.0))
sketch8.addConstraint(Sketcher.Constraint("DistanceY", 1, 3, 11, 3, 9.0))
sketch8.addConstraint(Sketcher.Constraint("DistanceY", 6, 3, 16, 3, 9.0))
sketch8.addConstraint(Sketcher.Constraint("DistanceY", 11, 3, 21, 3, 9.0))
sketch8.addConstraint(Sketcher.Constraint("DistanceY", 16, 3, 26, 3, 9.0))
sketch8.addConstraint(Sketcher.Constraint("DistanceY", 21, 3, 31, 3, 9.0))
sketch8.addConstraint(Sketcher.Constraint("DistanceY", 1, 3, 6, 3, 4.5))
sketch8.addConstraint(Sketcher.Constraint("DistanceY", 0, 3, -1, 1, 26.325))
sketch8.addConstraint(Sketcher.Constraint("DistanceX", -1, 1, 0, 3, 41.529811))
pad5 = body.newObject("PartDesign::Pad", "Pad004")
pad5.Profile = sketch8
pad5.Length = 1

doc.recompute()
